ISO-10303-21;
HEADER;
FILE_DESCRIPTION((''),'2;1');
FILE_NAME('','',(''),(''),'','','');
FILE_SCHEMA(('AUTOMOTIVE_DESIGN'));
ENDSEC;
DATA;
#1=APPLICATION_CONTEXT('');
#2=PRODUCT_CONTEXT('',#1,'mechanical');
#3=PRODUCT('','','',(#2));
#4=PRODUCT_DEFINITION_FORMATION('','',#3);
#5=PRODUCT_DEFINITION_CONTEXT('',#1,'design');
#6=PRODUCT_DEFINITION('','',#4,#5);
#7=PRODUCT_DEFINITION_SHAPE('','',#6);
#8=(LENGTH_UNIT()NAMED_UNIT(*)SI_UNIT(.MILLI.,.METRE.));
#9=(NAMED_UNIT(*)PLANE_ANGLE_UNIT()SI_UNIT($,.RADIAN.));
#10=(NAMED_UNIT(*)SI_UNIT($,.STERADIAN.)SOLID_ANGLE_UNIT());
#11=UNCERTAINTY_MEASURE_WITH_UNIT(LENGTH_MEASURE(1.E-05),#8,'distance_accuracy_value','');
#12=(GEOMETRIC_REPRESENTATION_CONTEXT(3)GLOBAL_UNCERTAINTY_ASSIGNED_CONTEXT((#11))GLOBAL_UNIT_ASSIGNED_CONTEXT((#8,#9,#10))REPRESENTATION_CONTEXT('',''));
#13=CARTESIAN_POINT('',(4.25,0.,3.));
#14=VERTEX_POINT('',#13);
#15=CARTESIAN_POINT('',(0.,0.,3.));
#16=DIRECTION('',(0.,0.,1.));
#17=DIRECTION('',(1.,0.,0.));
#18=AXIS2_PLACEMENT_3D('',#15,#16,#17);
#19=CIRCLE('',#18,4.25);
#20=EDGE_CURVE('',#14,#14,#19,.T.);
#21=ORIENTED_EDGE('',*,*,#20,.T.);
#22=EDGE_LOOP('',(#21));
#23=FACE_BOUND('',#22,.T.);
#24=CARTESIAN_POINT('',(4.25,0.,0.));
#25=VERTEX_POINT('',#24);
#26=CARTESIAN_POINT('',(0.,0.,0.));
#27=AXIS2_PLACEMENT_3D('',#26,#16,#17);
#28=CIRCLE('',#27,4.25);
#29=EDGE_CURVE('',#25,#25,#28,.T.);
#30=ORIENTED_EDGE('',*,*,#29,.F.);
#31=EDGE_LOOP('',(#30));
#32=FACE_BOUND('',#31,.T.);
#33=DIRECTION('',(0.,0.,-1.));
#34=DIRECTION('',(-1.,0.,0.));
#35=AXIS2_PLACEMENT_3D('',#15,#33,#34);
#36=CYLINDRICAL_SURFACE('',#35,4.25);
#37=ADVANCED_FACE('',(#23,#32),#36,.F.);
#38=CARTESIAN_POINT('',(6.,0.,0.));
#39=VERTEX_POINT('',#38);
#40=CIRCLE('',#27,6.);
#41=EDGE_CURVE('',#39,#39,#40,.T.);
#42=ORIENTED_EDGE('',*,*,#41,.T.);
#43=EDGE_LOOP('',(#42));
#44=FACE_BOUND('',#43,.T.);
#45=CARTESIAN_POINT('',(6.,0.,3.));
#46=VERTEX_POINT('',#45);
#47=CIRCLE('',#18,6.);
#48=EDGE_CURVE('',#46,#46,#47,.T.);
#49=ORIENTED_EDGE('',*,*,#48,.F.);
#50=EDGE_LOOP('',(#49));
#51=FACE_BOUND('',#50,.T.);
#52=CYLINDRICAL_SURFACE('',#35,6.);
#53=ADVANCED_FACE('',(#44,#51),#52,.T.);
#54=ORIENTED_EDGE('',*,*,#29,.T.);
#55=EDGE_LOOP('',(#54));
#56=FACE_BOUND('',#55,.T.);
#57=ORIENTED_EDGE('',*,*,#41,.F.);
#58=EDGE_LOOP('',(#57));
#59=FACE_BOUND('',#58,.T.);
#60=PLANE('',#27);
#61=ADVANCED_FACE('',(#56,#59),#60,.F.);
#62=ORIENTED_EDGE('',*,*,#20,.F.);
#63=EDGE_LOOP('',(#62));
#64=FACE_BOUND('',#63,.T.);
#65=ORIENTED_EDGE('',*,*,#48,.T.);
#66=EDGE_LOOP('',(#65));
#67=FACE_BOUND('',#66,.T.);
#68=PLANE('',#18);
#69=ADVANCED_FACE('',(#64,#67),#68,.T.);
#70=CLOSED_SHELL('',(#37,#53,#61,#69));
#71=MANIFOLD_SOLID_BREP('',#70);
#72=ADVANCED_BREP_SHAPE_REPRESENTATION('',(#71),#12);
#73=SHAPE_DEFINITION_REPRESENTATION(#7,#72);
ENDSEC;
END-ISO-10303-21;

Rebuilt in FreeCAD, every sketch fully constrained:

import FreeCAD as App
import Part
import Sketcher
from FreeCAD import Vector
Q = App.Units.Quantity

doc = App.newDocument("Part")
params = doc.addObject("Spreadsheet::Sheet", "Params")
for row, (alias, value) in enumerate([
    ("sketch1_diameter", "12 mm"),
    ("sketch1_diameter2", "8.5 mm"),
    ("pad1_length", "3 mm"),
], start=1):
    params.set(f"A{row}", alias)
    params.set(f"B{row}", "=" + value)
    params.setAlias(f"B{row}", alias)

body = doc.addObject("PartDesign::Body", "Body")

sketch1 = doc.addObject("Sketcher::SketchObject", "Sketch")
body.addObject(sketch1)
sketch1.AttachmentSupport = (doc.XY_Plane, [""])
sketch1.MapMode = "FlatFace"
sketch1.addGeometry(Part.Circle(Vector(0, 0, 0), Vector(0, 0, 1), 6), False)
sketch1.addGeometry(Part.Circle(Vector(0, 0, 0), Vector(0, 0, 1), 4.25), False)
sketch1.addConstraint(Sketcher.Constraint("Coincident", 0, 3, -1, 1))
sketch1.addConstraint(Sketcher.Constraint("Coincident", 1, 3, -1, 1))
sketch1.addConstraint(Sketcher.Constraint("Diameter", 0, Q("12 mm")))
sketch1.addConstraint(Sketcher.Constraint("Diameter", 1, Q("8.5 mm")))
sketch1.setExpression("Constraints[2]", "Params.sketch1_diameter")
sketch1.setExpression("Constraints[3]", "Params.sketch1_diameter2")
pad1 = doc.addObject("PartDesign::Pad", "Pad")
body.addObject(pad1)
pad1.Profile = sketch1
pad1.setExpression("Length", "Params.pad1_length")

doc.recompute()
